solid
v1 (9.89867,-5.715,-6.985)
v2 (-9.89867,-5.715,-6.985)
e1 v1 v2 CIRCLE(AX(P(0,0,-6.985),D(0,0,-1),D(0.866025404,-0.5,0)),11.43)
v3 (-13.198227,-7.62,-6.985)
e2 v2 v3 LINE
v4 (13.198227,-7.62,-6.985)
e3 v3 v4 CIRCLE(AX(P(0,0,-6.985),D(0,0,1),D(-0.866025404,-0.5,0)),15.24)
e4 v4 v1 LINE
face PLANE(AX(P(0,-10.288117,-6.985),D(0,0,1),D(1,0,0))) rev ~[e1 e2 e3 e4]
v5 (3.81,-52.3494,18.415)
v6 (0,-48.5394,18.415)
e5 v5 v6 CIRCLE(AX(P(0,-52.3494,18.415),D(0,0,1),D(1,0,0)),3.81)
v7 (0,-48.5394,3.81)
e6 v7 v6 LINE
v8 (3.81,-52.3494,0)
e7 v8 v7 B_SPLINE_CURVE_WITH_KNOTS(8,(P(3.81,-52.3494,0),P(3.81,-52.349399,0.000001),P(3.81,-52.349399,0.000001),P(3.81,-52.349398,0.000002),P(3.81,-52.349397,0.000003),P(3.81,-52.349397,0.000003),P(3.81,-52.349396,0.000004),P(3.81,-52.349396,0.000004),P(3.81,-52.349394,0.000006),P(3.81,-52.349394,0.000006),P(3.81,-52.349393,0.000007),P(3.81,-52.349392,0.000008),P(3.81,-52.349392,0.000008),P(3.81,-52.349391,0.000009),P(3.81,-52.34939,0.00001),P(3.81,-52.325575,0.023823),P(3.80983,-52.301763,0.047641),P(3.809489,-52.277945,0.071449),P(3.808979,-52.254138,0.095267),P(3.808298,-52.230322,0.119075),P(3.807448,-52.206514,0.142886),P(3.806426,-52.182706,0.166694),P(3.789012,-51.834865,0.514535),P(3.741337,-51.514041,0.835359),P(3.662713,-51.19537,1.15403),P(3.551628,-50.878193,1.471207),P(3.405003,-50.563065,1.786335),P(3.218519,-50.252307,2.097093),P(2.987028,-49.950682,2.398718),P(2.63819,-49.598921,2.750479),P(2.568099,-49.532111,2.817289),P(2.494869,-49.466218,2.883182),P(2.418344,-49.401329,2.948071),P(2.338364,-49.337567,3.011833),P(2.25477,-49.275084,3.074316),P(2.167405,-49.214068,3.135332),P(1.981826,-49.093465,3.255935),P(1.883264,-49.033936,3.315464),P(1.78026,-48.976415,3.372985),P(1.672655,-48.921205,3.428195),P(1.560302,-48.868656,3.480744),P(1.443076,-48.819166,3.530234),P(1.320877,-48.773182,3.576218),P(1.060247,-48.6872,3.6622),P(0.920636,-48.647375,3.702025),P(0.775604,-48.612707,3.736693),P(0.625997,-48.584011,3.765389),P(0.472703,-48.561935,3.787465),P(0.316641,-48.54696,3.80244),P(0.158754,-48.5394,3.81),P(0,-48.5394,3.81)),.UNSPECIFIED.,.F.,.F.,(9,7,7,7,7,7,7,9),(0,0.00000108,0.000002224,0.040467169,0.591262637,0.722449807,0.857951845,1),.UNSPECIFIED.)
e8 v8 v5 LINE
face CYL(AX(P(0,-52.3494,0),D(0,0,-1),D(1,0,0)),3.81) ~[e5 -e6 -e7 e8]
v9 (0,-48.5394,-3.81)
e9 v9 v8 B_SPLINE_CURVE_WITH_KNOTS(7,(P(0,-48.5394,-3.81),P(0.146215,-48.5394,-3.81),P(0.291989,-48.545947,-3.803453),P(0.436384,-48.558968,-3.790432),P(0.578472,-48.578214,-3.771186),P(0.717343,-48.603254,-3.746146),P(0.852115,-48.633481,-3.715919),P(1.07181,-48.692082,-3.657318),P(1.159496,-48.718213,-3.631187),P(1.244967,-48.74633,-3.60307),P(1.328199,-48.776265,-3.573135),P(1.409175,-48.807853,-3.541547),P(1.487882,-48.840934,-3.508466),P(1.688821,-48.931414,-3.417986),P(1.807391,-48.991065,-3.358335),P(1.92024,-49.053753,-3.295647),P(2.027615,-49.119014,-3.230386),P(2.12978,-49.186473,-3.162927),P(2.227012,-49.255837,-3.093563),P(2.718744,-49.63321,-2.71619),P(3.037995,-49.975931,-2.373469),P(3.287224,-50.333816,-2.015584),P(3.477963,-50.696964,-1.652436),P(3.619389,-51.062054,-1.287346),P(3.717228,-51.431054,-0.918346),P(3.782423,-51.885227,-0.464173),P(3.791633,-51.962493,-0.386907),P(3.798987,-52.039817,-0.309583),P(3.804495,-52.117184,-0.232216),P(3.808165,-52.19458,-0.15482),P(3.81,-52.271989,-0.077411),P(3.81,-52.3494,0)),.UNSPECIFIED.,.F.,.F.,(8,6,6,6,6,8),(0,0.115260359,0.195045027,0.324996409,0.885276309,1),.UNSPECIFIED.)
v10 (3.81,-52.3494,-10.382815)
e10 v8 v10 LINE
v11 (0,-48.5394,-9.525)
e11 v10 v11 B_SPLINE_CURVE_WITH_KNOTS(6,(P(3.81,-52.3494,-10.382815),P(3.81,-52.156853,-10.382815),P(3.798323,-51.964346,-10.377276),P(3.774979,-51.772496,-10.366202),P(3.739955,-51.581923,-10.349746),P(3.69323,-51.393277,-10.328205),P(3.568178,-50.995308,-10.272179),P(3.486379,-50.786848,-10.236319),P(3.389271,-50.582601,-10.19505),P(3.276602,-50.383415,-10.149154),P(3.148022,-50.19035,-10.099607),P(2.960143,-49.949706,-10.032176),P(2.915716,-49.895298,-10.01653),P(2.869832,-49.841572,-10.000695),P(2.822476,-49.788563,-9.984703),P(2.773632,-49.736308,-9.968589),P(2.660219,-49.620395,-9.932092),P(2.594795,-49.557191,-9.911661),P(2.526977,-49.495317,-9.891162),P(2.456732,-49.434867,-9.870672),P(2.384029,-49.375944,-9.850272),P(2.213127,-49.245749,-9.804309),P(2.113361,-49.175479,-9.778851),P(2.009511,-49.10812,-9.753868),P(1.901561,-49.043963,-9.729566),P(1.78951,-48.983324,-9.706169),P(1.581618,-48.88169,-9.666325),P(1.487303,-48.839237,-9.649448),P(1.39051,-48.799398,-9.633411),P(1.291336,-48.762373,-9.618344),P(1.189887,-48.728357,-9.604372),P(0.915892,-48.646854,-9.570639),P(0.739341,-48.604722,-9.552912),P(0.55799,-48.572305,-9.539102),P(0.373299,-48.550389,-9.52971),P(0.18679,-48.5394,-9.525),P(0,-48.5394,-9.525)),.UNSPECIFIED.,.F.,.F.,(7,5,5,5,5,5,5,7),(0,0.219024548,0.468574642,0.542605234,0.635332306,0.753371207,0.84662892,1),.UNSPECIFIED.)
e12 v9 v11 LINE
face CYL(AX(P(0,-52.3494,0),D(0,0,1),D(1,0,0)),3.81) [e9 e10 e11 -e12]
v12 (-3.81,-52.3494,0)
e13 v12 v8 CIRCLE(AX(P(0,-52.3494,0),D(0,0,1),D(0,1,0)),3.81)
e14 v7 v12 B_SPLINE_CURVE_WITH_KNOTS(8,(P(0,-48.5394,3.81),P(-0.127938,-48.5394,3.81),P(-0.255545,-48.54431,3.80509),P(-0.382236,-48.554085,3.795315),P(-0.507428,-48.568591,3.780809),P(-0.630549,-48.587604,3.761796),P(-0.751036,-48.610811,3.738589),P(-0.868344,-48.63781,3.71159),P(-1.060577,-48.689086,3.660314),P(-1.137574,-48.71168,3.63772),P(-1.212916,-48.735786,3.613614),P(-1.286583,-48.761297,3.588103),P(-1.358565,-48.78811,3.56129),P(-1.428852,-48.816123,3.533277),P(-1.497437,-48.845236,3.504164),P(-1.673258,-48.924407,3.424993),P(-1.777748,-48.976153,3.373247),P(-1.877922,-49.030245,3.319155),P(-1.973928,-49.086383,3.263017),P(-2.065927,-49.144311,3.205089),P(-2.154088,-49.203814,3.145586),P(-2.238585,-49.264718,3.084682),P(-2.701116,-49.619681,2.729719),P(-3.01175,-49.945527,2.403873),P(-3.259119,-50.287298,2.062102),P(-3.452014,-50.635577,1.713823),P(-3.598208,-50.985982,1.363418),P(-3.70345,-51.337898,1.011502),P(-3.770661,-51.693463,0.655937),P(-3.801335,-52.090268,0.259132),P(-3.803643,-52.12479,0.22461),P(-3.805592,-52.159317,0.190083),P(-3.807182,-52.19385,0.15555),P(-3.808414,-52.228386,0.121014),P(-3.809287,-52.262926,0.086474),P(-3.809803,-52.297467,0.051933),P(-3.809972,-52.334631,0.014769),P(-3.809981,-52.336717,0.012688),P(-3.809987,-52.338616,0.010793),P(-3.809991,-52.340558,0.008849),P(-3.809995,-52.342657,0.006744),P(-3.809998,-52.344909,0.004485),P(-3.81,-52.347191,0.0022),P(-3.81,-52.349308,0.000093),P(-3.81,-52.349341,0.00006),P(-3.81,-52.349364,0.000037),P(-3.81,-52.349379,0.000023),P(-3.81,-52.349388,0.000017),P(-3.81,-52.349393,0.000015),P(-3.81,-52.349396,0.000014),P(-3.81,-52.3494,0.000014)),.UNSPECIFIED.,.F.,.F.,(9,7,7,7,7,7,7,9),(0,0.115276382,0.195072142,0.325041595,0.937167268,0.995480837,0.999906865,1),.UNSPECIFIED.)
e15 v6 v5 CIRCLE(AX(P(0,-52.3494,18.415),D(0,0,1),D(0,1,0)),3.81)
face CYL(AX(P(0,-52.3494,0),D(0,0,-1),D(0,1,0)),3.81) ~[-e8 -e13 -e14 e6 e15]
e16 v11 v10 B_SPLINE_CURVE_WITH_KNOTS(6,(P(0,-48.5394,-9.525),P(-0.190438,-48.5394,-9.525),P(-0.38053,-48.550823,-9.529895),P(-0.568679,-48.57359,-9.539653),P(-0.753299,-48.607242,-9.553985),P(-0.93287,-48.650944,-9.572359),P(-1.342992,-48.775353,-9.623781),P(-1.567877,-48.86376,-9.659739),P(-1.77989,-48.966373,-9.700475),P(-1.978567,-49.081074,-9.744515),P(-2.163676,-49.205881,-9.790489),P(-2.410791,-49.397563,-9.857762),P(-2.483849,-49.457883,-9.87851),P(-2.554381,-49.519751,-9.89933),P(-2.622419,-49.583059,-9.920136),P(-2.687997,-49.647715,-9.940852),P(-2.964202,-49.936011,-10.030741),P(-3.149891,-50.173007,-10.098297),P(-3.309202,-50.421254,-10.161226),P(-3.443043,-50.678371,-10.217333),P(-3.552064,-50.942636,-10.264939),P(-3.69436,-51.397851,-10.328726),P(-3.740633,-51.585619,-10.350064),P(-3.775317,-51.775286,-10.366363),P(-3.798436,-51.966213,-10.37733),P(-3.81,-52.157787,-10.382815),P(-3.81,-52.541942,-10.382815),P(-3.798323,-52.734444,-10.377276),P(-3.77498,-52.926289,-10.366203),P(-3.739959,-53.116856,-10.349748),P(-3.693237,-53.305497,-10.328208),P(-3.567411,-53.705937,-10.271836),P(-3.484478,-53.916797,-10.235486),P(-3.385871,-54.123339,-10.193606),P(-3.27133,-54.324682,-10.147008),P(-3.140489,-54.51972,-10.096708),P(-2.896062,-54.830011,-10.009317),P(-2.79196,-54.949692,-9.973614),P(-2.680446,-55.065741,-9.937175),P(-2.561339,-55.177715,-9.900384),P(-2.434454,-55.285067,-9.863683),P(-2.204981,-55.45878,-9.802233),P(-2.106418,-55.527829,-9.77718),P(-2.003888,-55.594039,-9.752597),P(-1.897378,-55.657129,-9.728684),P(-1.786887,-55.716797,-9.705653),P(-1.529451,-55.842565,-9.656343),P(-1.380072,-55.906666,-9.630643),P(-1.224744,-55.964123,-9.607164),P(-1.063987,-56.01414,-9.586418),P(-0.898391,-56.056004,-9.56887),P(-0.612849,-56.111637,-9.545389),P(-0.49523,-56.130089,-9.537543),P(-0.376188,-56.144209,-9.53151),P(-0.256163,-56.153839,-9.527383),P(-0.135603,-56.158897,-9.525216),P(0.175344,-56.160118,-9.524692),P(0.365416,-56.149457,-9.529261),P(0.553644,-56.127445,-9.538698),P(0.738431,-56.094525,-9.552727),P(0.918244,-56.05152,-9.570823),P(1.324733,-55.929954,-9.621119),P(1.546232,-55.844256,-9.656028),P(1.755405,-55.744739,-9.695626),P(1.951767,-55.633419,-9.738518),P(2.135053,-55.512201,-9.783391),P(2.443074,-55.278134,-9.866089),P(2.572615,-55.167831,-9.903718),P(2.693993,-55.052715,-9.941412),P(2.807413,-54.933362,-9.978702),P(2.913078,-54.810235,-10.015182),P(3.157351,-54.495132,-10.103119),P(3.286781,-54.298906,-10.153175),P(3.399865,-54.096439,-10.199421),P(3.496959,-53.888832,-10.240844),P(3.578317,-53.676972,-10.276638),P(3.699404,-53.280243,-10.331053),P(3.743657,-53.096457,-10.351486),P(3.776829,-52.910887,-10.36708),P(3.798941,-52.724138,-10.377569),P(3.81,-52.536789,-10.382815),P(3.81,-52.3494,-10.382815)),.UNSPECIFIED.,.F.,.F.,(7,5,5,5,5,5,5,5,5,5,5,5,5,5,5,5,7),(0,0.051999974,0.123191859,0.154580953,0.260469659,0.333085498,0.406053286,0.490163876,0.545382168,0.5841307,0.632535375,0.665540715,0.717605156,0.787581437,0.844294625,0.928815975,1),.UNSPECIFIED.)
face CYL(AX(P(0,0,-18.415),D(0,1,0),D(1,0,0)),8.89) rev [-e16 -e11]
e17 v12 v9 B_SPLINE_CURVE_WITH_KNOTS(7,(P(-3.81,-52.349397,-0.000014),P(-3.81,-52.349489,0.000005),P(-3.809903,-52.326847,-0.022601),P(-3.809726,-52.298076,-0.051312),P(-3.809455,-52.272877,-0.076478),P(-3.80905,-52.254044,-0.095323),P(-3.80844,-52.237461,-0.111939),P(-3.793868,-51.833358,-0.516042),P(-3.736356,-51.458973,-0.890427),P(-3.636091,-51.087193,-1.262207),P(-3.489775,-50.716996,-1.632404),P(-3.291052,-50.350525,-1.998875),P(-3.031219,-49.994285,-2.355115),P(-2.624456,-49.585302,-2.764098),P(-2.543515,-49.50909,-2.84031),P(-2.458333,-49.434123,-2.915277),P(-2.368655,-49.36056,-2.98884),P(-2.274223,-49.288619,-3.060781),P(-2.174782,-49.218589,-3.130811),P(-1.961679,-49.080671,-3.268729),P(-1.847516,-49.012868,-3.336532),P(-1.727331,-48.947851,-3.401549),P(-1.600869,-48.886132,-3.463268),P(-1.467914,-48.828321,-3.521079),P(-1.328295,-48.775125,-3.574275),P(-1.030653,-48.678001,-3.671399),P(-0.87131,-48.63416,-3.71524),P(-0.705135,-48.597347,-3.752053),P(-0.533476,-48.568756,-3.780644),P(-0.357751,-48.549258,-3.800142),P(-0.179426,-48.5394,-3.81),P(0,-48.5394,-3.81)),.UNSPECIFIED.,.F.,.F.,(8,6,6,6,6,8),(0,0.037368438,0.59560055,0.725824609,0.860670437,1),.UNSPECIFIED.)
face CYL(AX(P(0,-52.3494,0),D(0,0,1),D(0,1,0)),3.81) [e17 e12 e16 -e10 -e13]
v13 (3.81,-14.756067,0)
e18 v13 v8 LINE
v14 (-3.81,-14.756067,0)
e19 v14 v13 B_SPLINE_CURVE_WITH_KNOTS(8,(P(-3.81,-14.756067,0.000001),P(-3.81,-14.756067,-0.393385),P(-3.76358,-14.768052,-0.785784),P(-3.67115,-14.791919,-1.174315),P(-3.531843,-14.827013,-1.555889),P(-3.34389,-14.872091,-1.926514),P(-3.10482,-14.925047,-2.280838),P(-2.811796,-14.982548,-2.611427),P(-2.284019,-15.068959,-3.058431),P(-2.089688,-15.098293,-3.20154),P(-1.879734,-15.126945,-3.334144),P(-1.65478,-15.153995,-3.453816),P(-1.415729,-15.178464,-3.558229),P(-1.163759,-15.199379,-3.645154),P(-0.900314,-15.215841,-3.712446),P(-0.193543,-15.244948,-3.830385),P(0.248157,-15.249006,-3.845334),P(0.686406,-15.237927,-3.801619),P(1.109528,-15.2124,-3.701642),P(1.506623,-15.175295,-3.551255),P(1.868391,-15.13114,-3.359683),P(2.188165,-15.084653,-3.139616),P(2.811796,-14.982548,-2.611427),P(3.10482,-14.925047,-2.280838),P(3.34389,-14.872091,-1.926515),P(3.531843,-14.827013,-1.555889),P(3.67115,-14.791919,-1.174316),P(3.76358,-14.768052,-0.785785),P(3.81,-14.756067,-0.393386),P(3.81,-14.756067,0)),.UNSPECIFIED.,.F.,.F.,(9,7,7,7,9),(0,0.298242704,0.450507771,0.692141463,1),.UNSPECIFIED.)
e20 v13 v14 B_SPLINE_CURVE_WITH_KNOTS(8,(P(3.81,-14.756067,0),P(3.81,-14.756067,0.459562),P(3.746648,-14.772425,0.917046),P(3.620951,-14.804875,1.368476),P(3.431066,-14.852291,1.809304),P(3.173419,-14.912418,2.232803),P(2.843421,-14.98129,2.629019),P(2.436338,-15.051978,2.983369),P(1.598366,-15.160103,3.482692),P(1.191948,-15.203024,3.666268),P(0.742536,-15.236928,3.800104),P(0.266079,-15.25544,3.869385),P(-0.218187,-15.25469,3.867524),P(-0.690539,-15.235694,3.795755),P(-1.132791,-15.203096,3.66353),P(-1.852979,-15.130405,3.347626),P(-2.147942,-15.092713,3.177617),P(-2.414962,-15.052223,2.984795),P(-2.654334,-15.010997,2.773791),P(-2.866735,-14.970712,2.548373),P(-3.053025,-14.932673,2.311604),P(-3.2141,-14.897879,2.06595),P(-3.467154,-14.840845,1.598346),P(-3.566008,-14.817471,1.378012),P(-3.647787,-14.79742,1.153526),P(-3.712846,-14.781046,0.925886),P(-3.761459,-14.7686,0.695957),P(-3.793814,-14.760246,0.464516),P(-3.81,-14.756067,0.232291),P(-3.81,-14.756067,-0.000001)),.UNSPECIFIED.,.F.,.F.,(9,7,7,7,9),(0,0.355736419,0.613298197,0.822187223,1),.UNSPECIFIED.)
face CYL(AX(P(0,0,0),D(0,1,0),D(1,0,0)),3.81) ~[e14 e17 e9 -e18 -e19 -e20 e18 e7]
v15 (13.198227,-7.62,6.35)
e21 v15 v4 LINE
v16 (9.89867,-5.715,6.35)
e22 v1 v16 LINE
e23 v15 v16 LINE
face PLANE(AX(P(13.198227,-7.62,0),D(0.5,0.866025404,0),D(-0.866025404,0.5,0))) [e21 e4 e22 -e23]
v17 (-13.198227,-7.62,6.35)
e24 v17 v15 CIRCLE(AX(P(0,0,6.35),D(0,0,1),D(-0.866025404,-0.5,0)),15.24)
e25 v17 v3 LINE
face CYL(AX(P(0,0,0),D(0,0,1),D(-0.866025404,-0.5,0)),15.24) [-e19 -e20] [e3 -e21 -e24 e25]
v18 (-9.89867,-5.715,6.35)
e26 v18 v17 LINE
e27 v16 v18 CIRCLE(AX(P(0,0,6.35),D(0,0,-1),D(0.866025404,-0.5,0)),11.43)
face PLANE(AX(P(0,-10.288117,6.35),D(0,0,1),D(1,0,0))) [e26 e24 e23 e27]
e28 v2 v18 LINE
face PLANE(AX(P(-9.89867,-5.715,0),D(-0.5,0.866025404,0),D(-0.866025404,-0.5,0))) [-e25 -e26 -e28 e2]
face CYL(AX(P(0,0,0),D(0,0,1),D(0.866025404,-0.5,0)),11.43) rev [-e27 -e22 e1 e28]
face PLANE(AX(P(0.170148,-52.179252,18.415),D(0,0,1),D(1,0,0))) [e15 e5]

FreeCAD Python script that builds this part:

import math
import FreeCAD as App
import Part
import Sketcher
Q = App.Units.Quantity

doc = App.newDocument("Part")
body = doc.addObject("PartDesign::Body", "Body")

# Sketch on XZ plane
sketch1 = doc.addObject("Sketcher::SketchObject", "Sketch")
body.addObject(sketch1)
sketch1.AttachmentSupport = (doc.XZ_Plane, [""])
sketch1.MapMode = "FlatFace"
sketch1.addGeometry(Part.Circle(App.Vector(0, 0, 0), App.Vector(0, 0, 1), 3.8), False)
sketch1.addConstraint([
    Sketcher.Constraint("Coincident", 0, 3, -1, 1),
    Sketcher.Constraint("Diameter", 0, Q("0.3 in")),
])
pad1 = doc.addObject("PartDesign::Pad", "Pad")
body.addObject(pad1)
pad1.Profile = sketch1
pad1.Length = Q("2.061 in")

# Sketch on XY plane
sketch2 = doc.addObject("Sketcher::SketchObject", "Sketch001")
body.addObject(sketch2)
sketch2.AttachmentSupport = (doc.XY_Plane, [""])
sketch2.MapMode = "FlatFace"
sketch2.addGeometry([
    Part.ArcOfCircle(Part.Circle(App.Vector(0, 0, 0), App.Vector(0, 0, 1), 11), math.radians(180), math.radians(210)),
    Part.ArcOfCircle(Part.Circle(App.Vector(0, 0, 0), App.Vector(0, 0, 1), 11), math.radians(-150), math.radians(-30)),
    Part.ArcOfCircle(Part.Circle(App.Vector(0, 0, 0), App.Vector(0, 0, 1), 11), math.radians(-30), math.radians(0)),
    Part.LineSegment(App.Vector(11, 0, 0), App.Vector(-11, 0, 0)),
], False)
sketch2.addConstraint([
    Sketcher.Constraint("Tangent", 0, 2, 1, 1),
    Sketcher.Constraint("Tangent", 1, 2, 2, 1),
    Sketcher.Constraint("Coincident", 2, 2, 3, 1),
    Sketcher.Constraint("Coincident", 3, 2, 0, 1),
    Sketcher.Constraint("Horizontal", 3),
    Sketcher.Constraint("Coincident", 0, 3, -1, 1),
    Sketcher.Constraint("Coincident", 2, 3, -1, 1),
    Sketcher.Constraint("PointOnObject", 2, 2, -1),
    Sketcher.Constraint("Horizontal", 0, 2, 1, 2),
    Sketcher.Constraint("Radius", 0, Q("0.45 in")),
    Sketcher.Constraint("DistanceY", 0, 2, -1, 1, Q("0.225 in")),
])
pocket1 = doc.addObject("PartDesign::Pocket", "Pocket")
body.addObject(pocket1)
pocket1.Profile = sketch2
pocket1.Type = "ThroughAll"
pocket1.Midplane = True

# Sketch on XY plane
sketch3 = doc.addObject("Sketcher::SketchObject", "Sketch002")
body.addObject(sketch3)
sketch3.AttachmentSupport = (doc.XY_Plane, [""])
sketch3.MapMode = "FlatFace"
sketch3.addGeometry([
    Part.LineSegment(App.Vector(13.2, -7.6, 0), App.Vector(9.9, -5.7, 0)),
    Part.ArcOfCircle(Part.Circle(App.Vector(0, 0, 0), App.Vector(0, 0, 1), 11.4), math.radians(-150), math.radians(-30)),
    Part.LineSegment(App.Vector(-9.9, -5.7, 0), App.Vector(-13.2, -7.6, 0)),
    Part.ArcOfCircle(Part.Circle(App.Vector(0, 0, 0), App.Vector(0, 0, 1), 15.2), math.radians(-150), math.radians(-30)),
], False)
sketch3.addConstraint([
    Sketcher.Constraint("Coincident", 0, 2, 1, 2),
    Sketcher.Constraint("Coincident", 1, 1, 2, 1),
    Sketcher.Constraint("Coincident", 2, 2, 3, 1),
    Sketcher.Constraint("Coincident", 3, 2, 0, 1),
    Sketcher.Constraint("Coincident", 1, 3, -1, 1),
    Sketcher.Constraint("Coincident", 3, 3, -1, 1),
    Sketcher.Constraint("Horizontal", 0, 2, 1, 1),
    Sketcher.Constraint("Horizontal", 2, 2, 3, 2),
    Sketcher.Constraint("Radius", 3, Q("0.6 in")),
    Sketcher.Constraint("Radius", 1, Q("0.45 in")),
    Sketcher.Constraint("Angle", 0, Q("150 deg")),
    Sketcher.Constraint("DistanceY", 2, 2, -1, 1, Q("0.3 in")),
])
pad2 = doc.addObject("PartDesign::Pad", "Pad001")
body.addObject(pad2)
pad2.Profile = sketch3
pad2.Type = "TwoLengths"
pad2.Length = Q("0.25 in")
pad2.Length2 = Q("0.275 in")

# Sketch on XY plane
sketch4 = doc.addObject("Sketcher::SketchObject", "Sketch003")
body.addObject(sketch4)
sketch4.AttachmentSupport = (doc.XY_Plane, [""])
sketch4.MapMode = "FlatFace"
sketch4.addGeometry([
    Part.ArcOfCircle(Part.Circle(App.Vector(0, -52.3, 0), App.Vector(0, 0, 1), 3.8), math.radians(90), math.radians(360)),
    Part.ArcOfCircle(Part.Circle(App.Vector(0, -52.3, 0), App.Vector(0, 0, 1), 3.8), math.radians(0), math.radians(90)),
], False)
sketch4.addConstraint([
    Sketcher.Constraint("Tangent", 0, 1, 1, 2),
    Sketcher.Constraint("Coincident", 1, 1, 0, 2),
    Sketcher.Constraint("PointOnObject", 0, 3, -2),
    Sketcher.Constraint("PointOnObject", 0, 1, -2),
    Sketcher.Constraint("Horizontal", 0, 3, 1, 1),
    Sketcher.Constraint("Radius", 0, Q("0.15 in")),
    Sketcher.Constraint("DistanceY", 0, 3, -1, 1, Q("2.061 in")),
])
pad3 = doc.addObject("PartDesign::Pad", "Pad002")
body.addObject(pad3)
pad3.Profile = sketch4
pad3.Type = "TwoLengths"
pad3.Length = Q("0.725 in")
pad3.Length2 = Q("0.725 in")

# Sketch on XZ plane
sketch5 = doc.addObject("Sketcher::SketchObject", "Sketch004")
body.addObject(sketch5)
sketch5.AttachmentSupport = (doc.XZ_Plane, [""])
sketch5.MapMode = "FlatFace"
sketch5.addGeometry(Part.Circle(App.Vector(0, -18, 0), App.Vector(0, 0, 1), 9), False)
sketch5.addConstraint([
    Sketcher.Constraint("PointOnObject", 0, 3, -2),
    Sketcher.Constraint("Diameter", 0, Q("0.7 in")),
    Sketcher.Constraint("DistanceY", 0, 3, -1, 1, Q("0.725 in")),
])
pocket2 = doc.addObject("PartDesign::Pocket", "Pocket001")
body.addObject(pocket2)
pocket2.Profile = sketch5
pocket2.Length = 66.62603
pocket2.Reversed = True

doc.recompute()
